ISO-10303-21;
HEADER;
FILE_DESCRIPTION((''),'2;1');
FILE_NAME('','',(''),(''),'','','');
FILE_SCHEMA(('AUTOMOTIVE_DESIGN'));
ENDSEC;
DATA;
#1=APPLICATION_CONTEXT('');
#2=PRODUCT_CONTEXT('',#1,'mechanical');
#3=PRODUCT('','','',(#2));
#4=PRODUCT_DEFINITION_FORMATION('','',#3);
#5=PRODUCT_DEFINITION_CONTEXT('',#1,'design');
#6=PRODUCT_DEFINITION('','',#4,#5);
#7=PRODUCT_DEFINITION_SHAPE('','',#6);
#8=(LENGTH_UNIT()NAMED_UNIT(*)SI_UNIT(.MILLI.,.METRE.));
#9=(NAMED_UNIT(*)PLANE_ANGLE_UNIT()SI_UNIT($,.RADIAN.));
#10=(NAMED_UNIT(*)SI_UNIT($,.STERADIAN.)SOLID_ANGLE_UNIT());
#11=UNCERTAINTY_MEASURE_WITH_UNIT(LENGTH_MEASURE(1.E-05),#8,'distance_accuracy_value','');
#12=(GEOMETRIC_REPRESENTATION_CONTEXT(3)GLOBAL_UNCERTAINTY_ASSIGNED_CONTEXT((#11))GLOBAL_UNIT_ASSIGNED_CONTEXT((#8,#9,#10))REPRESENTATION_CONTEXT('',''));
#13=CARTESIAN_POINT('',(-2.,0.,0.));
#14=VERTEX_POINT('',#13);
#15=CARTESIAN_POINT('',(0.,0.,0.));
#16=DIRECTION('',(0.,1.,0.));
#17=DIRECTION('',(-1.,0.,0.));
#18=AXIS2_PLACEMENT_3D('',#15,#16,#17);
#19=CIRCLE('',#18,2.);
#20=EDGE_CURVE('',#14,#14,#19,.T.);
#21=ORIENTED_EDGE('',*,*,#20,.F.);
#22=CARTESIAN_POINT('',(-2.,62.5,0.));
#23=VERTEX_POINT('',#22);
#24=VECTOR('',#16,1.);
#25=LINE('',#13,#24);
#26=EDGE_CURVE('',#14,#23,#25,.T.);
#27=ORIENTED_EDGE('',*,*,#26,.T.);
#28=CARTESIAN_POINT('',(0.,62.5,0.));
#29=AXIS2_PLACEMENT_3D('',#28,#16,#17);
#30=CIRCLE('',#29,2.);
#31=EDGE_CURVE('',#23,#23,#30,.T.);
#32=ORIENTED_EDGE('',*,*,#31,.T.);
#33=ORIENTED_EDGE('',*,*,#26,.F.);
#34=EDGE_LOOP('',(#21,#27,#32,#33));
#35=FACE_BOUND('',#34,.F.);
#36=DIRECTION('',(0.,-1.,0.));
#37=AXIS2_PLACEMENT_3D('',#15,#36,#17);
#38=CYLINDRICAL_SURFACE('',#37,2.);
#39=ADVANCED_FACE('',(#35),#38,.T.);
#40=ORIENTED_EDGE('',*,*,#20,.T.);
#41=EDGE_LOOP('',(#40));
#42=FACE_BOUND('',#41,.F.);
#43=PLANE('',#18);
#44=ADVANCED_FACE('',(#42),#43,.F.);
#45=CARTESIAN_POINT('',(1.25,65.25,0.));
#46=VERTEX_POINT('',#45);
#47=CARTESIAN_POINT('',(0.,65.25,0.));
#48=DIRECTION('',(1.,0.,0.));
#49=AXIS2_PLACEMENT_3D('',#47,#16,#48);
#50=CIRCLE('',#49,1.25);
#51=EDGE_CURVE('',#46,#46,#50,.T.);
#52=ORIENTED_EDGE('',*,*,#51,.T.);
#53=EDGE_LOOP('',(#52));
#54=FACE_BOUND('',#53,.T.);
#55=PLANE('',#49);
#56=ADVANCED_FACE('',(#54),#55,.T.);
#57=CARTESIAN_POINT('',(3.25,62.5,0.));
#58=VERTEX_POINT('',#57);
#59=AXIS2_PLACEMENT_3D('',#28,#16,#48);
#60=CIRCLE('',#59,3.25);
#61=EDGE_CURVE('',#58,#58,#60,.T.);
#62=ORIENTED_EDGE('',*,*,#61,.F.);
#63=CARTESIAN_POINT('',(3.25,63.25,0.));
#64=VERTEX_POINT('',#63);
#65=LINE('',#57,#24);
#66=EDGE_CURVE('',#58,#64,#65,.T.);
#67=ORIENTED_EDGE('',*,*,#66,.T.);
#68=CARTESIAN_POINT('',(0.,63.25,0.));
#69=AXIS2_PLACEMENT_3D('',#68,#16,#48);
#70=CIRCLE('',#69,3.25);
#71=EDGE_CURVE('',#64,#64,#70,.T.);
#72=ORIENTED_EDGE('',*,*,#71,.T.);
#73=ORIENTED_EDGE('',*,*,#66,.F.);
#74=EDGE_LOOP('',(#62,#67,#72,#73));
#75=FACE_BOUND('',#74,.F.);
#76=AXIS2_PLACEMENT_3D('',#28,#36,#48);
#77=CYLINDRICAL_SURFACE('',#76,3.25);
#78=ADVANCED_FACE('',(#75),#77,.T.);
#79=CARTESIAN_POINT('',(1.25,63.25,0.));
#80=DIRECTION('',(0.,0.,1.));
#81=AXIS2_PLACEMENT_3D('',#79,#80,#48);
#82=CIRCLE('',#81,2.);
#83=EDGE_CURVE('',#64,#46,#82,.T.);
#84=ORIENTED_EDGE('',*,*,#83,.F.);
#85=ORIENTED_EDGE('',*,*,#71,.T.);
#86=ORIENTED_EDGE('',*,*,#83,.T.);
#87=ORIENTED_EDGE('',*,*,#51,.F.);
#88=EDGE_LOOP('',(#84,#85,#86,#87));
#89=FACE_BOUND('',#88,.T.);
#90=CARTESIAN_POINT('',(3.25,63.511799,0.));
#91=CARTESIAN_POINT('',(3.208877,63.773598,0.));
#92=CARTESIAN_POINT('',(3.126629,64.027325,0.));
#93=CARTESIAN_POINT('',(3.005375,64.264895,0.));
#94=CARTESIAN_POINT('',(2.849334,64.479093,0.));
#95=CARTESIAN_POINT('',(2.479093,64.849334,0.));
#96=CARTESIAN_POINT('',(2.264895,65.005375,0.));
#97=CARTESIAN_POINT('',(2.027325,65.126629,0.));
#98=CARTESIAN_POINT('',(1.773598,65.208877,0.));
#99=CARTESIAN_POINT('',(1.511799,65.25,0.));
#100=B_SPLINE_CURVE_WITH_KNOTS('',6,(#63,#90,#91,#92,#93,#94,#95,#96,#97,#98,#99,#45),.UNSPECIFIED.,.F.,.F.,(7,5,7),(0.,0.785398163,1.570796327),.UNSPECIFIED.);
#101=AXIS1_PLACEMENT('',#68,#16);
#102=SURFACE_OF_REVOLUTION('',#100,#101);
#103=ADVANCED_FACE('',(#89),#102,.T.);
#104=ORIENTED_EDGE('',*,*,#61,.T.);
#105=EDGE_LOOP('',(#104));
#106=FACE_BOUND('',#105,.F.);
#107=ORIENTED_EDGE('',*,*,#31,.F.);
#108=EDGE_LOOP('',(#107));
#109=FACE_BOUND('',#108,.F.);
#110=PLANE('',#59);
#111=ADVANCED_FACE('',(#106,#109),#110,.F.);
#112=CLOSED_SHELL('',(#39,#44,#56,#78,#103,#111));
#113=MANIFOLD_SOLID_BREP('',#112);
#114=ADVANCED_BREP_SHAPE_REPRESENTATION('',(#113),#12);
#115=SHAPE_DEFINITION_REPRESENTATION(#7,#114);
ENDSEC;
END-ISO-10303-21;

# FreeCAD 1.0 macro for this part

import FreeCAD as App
import Part
import Sketcher
Q = App.Units.Quantity


def edges_at(feature, points):
    """Names of the edges that pass closest to the given points."""
    edges = feature.Shape.Edges
    near = lambda p: min(range(len(edges)), key=lambda i: edges[i].distToShape(Part.Vertex(*p))[0])
    return sorted({f"Edge{near(p) + 1}" for p in points})

doc = App.newDocument("Part")
body = doc.addObject("PartDesign::Body", "Body")

# Sketch on XZ plane
sketch1 = doc.addObject("Sketcher::SketchObject", "Sketch")
body.addObject(sketch1)
sketch1.AttachmentSupport = (doc.XZ_Plane, [""])
sketch1.MapMode = "FlatFace"
sketch1.addGeometry(Part.Circle(App.Vector(0, 0, 0), App.Vector(0, 0, 1), 2), False)
sketch1.addConstraint([
    Sketcher.Constraint("Coincident", 0, 3, -1, 1),
    Sketcher.Constraint("Diameter", 0, Q("4 mm")),
])
pad1 = doc.addObject("PartDesign::Pad", "Pad")
body.addObject(pad1)
pad1.Profile = sketch1
pad1.Length = 62.5
pad1.Reversed = True

# Sketch on XZ plane
sketch2 = doc.addObject("Sketcher::SketchObject", "Sketch001")
body.addObject(sketch2)
sketch2.AttachmentSupport = (doc.XZ_Plane, [""])
sketch2.MapMode = "FlatFace"
sketch2.AttachmentOffset = App.Placement(App.Vector(0, 0, -62.5), App.Rotation())
sketch2.addGeometry(Part.Circle(App.Vector(0, 0, 0), App.Vector(0, 0, 1), 3.2), False)
sketch2.addConstraint([
    Sketcher.Constraint("Coincident", 0, 3, -1, 1),
    Sketcher.Constraint("Diameter", 0, Q("6.5 mm")),
])
pad2 = doc.addObject("PartDesign::Pad", "Pad001")
body.addObject(pad2)
pad2.Profile = sketch2
pad2.Length = 2.75
pad2.Reversed = True
doc.recompute()

fillet = doc.addObject("PartDesign::Fillet", "Fillet")
body.addObject(fillet)
fillet.Base = (pad2, edges_at(pad2, [(-3.25, 65.25, 0)]))
fillet.Radius = 2

doc.recompute()
